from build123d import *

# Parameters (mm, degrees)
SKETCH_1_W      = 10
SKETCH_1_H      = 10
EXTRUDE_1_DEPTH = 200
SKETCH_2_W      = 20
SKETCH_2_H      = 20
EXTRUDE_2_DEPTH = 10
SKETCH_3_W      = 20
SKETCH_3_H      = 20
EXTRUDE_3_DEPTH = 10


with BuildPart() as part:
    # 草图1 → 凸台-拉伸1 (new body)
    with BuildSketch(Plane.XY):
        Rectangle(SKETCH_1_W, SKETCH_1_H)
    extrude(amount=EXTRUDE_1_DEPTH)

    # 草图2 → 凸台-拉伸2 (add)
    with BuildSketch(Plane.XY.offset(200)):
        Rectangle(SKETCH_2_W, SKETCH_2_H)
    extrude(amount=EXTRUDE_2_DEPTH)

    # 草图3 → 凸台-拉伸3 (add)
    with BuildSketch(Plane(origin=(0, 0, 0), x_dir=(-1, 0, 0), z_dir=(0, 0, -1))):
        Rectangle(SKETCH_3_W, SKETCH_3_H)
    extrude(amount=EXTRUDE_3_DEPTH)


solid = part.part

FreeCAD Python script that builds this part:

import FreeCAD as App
import Part
import Sketcher


def add_polygon(sketch, points):
    """Adds a closed chain of lines whose ends are joined by coincident constraints."""
    first, n = sketch.GeometryCount, len(points)
    for a, b in zip(points, points[1:] + points[:1]):
        sketch.addGeometry(Part.LineSegment(App.Vector(*a, 0), App.Vector(*b, 0)), False)
    for i in range(n):
        sketch.addConstraint(Sketcher.Constraint("Coincident", first + i, 2, first + (i + 1) % n, 1))

doc = App.newDocument("Part")
body = doc.addObject("PartDesign::Body", "Body")

# Sketch on XY plane
sketch1 = body.newObject("Sketcher::SketchObject", "Sketch")
sketch1.AttachmentSupport = (doc.getObject("XY_Plane"), [""])
sketch1.MapMode = "FlatFace"
add_polygon(sketch1, [(-5, 5), (-5, -5), (5, -5), (5, 5)])  # lines 0-3
sketch1.addConstraint(Sketcher.Constraint("Vertical", 0))
sketch1.addConstraint(Sketcher.Constraint("Horizontal", 1))
sketch1.addConstraint(Sketcher.Constraint("Vertical", 2))
sketch1.addConstraint(Sketcher.Constraint("Horizontal", 3))
sketch1.addConstraint(Sketcher.Constraint("Symmetric", 0, 2, 2, 2, -1, 1))
sketch1.addConstraint(Sketcher.Constraint("Equal", 3, 0))
sketch1.addConstraint(Sketcher.Constraint("DistanceX", 1, 1, 1, 2, 10.0))
pad1 = body.newObject("PartDesign::Pad", "Pad")
pad1.Profile = sketch1
pad1.Length = 200

# Sketch on XY plane
sketch2 = body.newObject("Sketcher::SketchObject", "Sketch001")
sketch2.AttachmentSupport = (doc.getObject("XY_Plane"), [""])
sketch2.MapMode = "FlatFace"
sketch2.AttachmentOffset = App.Placement(App.Vector(0, 0, 200), App.Rotation())
add_polygon(sketch2, [(-10, 10), (-10, -10), (10, -10), (10, 10)])  # lines 0-3
sketch2.addConstraint(Sketcher.Constraint("Vertical", 0))
sketch2.addConstraint(Sketcher.Constraint("Horizontal", 1))
sketch2.addConstraint(Sketcher.Constraint("Vertical", 2))
sketch2.addConstraint(Sketcher.Constraint("Horizontal", 3))
sketch2.addConstraint(Sketcher.Constraint("Symmetric", 0, 2, 2, 2, -1, 1))
sketch2.addConstraint(Sketcher.Constraint("Equal", 3, 0))
sketch2.addConstraint(Sketcher.Constraint("DistanceX", 1, 1, 1, 2, 20.0))
pad2 = body.newObject("PartDesign::Pad", "Pad001")
pad2.Profile = sketch2
pad2.Length = 10

# Sketch on XY plane
sketch3 = body.newObject("Sketcher::SketchObject", "Sketch002")
sketch3.AttachmentSupport = (doc.getObject("XY_Plane"), [""])
sketch3.MapMode = "FlatFace"
add_polygon(sketch3, [(10, 10), (10, -10), (-10, -10), (-10, 10)])  # lines 0-3
sketch3.addConstraint(Sketcher.Constraint("Vertical", 0))
sketch3.addConstraint(Sketcher.Constraint("Horizontal", 1))
sketch3.addConstraint(Sketcher.Constraint("Vertical", 2))
sketch3.addConstraint(Sketcher.Constraint("Horizontal", 3))
sketch3.addConstraint(Sketcher.Constraint("Symmetric", 0, 2, 2, 2, -1, 1))
sketch3.addConstraint(Sketcher.Constraint("Equal", 3, 0))
sketch3.addConstraint(Sketcher.Constraint("DistanceX", 1, 2, 1, 1, 20.0))
pad3 = body.newObject("PartDesign::Pad", "Pad002")
pad3.Profile = sketch3
pad3.Length = 10
pad3.Reversed = True

doc.recompute()
